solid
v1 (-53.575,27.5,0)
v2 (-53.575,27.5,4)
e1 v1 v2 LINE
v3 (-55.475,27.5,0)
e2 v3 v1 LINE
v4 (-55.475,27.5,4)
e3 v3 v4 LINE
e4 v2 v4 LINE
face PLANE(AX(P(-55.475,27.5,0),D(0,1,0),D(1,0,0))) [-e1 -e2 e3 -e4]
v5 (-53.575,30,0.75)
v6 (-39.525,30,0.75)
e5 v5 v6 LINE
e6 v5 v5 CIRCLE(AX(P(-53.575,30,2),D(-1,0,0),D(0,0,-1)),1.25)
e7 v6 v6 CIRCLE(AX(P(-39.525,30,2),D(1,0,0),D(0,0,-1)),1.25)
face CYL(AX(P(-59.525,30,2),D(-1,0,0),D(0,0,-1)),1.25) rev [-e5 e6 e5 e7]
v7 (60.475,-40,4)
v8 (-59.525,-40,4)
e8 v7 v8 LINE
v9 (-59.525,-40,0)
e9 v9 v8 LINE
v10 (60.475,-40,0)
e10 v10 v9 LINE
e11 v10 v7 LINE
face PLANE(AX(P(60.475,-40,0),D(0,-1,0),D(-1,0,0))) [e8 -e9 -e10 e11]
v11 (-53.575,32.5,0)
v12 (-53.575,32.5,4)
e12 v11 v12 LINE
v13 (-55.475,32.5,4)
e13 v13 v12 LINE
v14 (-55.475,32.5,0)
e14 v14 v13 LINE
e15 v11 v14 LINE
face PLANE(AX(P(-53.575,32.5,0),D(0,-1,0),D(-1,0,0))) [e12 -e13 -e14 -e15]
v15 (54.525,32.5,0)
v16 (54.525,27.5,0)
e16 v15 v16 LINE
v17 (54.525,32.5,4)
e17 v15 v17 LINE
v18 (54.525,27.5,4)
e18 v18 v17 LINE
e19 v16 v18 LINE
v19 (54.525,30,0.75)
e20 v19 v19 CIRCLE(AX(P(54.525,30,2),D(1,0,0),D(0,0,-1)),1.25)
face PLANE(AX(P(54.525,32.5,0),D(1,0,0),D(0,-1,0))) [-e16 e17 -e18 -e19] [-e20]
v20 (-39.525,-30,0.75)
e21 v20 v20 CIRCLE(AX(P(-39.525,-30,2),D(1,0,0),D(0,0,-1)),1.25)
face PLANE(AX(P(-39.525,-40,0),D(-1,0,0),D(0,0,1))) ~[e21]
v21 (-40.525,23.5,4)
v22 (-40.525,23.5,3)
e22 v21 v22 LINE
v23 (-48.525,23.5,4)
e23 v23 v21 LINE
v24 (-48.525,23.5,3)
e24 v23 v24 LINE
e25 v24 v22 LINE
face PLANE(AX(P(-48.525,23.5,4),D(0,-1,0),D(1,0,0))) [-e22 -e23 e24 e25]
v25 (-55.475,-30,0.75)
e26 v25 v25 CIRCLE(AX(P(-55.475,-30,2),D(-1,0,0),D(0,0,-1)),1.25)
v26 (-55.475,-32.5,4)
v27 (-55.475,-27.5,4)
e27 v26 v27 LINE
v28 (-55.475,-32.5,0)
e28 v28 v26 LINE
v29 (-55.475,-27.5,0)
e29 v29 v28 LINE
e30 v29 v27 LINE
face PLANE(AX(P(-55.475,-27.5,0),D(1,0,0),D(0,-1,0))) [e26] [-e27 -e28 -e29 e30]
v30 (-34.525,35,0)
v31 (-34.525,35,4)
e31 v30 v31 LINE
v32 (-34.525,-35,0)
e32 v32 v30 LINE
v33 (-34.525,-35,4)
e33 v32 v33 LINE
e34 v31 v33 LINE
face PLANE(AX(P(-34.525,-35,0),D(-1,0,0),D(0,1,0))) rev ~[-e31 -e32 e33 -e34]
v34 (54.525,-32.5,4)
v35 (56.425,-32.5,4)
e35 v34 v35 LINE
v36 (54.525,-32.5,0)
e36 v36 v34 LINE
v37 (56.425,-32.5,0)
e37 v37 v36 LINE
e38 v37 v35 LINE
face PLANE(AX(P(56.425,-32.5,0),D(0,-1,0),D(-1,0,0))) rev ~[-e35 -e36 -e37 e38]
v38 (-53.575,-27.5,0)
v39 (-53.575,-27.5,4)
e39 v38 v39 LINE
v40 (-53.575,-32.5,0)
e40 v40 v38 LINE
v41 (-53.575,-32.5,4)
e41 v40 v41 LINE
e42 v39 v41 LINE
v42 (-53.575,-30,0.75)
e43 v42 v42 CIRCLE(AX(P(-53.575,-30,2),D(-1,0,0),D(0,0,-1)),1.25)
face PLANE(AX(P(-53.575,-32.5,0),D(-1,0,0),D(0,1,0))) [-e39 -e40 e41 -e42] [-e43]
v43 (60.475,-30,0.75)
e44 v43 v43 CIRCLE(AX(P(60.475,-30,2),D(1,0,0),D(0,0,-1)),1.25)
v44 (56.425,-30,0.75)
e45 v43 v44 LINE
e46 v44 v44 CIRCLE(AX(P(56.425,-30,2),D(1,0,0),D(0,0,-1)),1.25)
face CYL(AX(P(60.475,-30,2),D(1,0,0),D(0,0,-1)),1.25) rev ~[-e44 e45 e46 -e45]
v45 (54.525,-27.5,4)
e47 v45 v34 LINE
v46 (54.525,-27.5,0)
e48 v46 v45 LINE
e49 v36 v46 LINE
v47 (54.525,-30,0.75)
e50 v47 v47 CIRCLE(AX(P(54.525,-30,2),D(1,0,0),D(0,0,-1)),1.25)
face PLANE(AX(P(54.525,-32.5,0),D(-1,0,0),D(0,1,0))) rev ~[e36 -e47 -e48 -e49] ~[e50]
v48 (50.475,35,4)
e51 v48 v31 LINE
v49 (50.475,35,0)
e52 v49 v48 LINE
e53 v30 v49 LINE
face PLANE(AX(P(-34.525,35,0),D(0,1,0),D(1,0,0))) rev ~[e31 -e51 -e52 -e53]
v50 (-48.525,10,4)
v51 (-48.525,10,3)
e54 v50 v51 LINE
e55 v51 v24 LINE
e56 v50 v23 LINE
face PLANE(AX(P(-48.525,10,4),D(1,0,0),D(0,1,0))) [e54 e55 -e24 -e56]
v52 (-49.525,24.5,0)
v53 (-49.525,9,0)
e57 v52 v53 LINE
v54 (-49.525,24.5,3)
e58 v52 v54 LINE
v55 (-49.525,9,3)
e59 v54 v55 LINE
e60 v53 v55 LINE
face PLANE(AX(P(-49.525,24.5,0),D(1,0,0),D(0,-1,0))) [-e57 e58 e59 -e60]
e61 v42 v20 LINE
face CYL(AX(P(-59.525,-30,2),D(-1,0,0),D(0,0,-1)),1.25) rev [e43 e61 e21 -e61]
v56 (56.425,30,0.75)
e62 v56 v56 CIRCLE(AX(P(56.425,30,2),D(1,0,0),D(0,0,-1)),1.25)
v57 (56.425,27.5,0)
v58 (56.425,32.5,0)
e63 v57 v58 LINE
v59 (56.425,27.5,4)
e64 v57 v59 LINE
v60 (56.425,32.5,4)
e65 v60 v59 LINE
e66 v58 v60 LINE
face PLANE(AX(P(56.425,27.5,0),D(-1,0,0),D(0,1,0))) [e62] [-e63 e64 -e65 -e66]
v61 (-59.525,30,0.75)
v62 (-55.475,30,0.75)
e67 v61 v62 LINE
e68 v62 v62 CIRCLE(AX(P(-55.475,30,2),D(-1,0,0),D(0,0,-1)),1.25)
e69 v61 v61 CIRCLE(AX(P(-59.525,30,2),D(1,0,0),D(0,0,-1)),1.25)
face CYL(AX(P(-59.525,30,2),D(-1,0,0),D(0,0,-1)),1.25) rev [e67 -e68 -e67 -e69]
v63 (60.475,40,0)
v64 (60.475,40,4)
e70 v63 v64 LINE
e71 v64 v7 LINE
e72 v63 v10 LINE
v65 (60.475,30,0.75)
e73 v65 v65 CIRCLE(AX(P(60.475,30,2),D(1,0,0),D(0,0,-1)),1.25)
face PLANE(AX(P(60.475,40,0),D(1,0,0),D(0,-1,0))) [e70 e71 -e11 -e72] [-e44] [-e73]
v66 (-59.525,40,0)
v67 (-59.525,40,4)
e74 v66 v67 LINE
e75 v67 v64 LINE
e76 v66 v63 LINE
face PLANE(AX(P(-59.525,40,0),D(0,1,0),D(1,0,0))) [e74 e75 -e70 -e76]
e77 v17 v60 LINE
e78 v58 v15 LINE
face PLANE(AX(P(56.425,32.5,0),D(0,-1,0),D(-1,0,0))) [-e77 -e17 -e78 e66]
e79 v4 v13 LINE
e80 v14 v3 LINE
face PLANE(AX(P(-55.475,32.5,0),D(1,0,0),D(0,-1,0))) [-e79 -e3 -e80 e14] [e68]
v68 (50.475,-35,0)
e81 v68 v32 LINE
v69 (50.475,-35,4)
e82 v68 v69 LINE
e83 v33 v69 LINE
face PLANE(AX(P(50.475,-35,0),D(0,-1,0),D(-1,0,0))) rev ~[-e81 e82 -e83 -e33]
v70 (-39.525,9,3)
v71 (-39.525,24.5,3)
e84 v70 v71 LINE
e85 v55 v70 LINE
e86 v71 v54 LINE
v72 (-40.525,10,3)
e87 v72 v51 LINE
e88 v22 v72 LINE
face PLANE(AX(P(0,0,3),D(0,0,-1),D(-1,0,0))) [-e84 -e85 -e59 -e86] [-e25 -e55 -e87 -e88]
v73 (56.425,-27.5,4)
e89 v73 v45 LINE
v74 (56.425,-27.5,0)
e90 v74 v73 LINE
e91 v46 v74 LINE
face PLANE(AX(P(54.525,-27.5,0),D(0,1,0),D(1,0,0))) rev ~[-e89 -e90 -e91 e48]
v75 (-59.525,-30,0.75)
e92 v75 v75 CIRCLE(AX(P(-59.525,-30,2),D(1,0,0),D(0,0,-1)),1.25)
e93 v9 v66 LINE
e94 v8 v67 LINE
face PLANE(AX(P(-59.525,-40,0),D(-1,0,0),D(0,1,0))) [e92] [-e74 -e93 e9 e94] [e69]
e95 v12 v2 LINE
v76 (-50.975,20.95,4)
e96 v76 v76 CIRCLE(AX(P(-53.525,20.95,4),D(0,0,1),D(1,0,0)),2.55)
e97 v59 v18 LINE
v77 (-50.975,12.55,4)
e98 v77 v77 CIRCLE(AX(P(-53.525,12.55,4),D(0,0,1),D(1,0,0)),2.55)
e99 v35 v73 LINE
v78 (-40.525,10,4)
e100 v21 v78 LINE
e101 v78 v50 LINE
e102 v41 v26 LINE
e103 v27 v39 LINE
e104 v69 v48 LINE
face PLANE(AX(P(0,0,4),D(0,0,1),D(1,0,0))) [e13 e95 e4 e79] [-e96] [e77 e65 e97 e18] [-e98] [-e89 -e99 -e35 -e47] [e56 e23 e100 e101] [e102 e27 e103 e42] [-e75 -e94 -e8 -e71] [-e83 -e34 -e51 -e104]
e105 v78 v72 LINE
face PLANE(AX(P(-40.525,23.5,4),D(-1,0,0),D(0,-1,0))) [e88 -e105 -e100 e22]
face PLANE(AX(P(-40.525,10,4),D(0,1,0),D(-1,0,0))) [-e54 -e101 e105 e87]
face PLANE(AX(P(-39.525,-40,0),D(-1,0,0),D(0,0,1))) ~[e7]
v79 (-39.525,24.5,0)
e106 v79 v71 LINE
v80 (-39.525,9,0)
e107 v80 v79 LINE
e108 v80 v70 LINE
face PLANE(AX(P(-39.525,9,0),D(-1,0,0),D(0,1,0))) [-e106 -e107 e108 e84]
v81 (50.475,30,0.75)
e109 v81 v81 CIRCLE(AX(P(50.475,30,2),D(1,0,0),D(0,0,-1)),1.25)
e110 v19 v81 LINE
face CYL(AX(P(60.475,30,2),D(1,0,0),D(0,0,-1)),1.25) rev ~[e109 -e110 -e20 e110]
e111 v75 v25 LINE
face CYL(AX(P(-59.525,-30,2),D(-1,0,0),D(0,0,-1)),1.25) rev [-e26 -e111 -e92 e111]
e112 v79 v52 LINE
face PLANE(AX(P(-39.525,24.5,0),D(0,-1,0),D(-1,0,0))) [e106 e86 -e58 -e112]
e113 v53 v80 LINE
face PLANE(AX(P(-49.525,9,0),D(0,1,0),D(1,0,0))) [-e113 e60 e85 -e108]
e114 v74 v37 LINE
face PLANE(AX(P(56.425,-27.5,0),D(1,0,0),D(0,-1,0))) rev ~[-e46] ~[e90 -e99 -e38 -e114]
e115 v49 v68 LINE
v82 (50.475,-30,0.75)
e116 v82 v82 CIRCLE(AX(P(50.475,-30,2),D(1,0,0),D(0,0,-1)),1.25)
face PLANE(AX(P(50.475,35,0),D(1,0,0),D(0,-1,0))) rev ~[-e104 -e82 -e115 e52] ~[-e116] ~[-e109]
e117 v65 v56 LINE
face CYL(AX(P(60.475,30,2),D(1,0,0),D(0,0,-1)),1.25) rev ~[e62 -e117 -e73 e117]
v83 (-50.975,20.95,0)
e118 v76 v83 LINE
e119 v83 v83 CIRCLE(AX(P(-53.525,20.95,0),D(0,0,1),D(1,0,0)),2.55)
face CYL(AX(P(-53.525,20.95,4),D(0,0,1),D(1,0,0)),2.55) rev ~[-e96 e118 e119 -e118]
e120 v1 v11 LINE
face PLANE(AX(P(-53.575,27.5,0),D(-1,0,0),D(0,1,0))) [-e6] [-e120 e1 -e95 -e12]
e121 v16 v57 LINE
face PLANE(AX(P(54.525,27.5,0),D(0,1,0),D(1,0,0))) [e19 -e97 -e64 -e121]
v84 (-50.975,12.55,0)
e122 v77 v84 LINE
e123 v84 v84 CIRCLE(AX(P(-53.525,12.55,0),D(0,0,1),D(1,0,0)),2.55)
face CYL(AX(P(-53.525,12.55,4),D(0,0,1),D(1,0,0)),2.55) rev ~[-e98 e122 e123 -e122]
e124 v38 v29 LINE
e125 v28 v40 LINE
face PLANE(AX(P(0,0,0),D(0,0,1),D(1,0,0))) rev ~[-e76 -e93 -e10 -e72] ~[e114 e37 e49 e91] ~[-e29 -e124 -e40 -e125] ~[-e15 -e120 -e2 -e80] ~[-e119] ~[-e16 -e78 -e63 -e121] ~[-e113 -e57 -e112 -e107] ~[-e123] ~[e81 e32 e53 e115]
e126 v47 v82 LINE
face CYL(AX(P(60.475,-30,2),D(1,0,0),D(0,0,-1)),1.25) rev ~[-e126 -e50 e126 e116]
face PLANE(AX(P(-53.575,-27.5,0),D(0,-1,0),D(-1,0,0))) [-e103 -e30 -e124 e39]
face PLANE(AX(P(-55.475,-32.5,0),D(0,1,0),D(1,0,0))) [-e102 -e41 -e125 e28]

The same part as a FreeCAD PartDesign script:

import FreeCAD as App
import Part
import Sketcher
from FreeCAD import Vector
Q = App.Units.Quantity


def add_polygon(sketch, points):
    """Adds a closed chain of lines whose ends are joined by coincident constraints."""
    first, n = sketch.GeometryCount, len(points)
    for a, b in zip(points, points[1:] + points[:1]):
        sketch.addGeometry(Part.LineSegment(App.Vector(*a, 0), App.Vector(*b, 0)), False)
    for i in range(n):
        sketch.addConstraint(Sketcher.Constraint("Coincident", first + i, 2, first + (i + 1) % n, 1))

doc = App.newDocument("Part")
body = doc.addObject("PartDesign::Body", "Body")

# Sketch on XY plane
sketch1 = body.newObject("Sketcher::SketchObject", "Sketch")
sketch1.AttachmentSupport = (doc.getObject("XY_Plane"), [""])
sketch1.MapMode = "FlatFace"
add_polygon(sketch1, [(60.475, 40), (-59.525, 40), (-59.525, -40), (60.475, -40)])  # lines 0-3
sketch1.addConstraint([
    Sketcher.Constraint("Horizontal", 0),
    Sketcher.Constraint("Vertical", 1),
    Sketcher.Constraint("Horizontal", 2),
    Sketcher.Constraint("Vertical", 3),
    Sketcher.Constraint("DistanceX", 0, 2, 0, 1, Q("120 mm")),
    Sketcher.Constraint("DistanceY", 1, 2, 1, 1, Q("80 mm")),
    Sketcher.Constraint("DistanceY", -1, 1, 0, 2, Q("40 mm")),
    Sketcher.Constraint("DistanceX", 0, 2, -1, 1, Q("59.525 mm")),
])
pad1 = body.newObject("PartDesign::Pad", "Pad")
pad1.Profile = sketch1
pad1.Length = 4

# Sketch on YZ plane
sketch2 = body.newObject("Sketcher::SketchObject", "Sketch001")
sketch2.AttachmentSupport = (doc.getObject("YZ_Plane"), [""])
sketch2.MapMode = "FlatFace"
sketch2.AttachmentOffset = App.Placement(Vector(0, 0, 60.475), App.Rotation())
sketch2.addGeometry([
    Part.Circle(Vector(-30, 2, 0), Vector(0, 0, 1), 1.25),
    Part.Circle(Vector(30, 2, 0), Vector(0, 0, 1), 1.25),
], False)
sketch2.addConstraint([
    Sketcher.Constraint("Equal", 0, 1),
    Sketcher.Constraint("Symmetric", 0, 3, 1, 3, -2),
    Sketcher.Constraint("Diameter", 0, Q("2.5 mm")),
    Sketcher.Constraint("DistanceY", -1, 1, 0, 3, Q("2 mm")),
    Sketcher.Constraint("DistanceX", 0, 3, -1, 1, Q("30 mm")),
])
pocket1 = body.newObject("PartDesign::Pocket", "Pocket")
pocket1.Profile = sketch2
pocket1.Length = 20

# Sketch on XY plane
sketch3 = body.newObject("Sketcher::SketchObject", "Sketch002")
sketch3.AttachmentSupport = (doc.getObject("XY_Plane"), [""])
sketch3.MapMode = "FlatFace"
add_polygon(sketch3, [(-55.475, -27.5), (-55.475, -32.5), (-53.575, -32.5), (-53.575, -27.5)])  # lines 0-3
add_polygon(sketch3, [(54.525, -32.5), (56.425, -32.5), (56.425, -27.5), (54.525, -27.5)])  # lines 4-7
add_polygon(sketch3, [(-53.575, 27.5), (-53.575, 32.5), (-55.475, 32.5), (-55.475, 27.5)])  # lines 8-11
add_polygon(sketch3, [(56.425, 27.5), (56.425, 32.5), (54.525, 32.5), (54.525, 27.5)])  # lines 12-15
sketch3.addConstraint([
    Sketcher.Constraint("Vertical", 0),
    Sketcher.Constraint("Horizontal", 1),
    Sketcher.Constraint("Vertical", 2),
    Sketcher.Constraint("Horizontal", 3),
    Sketcher.Constraint("Horizontal", 4),
    Sketcher.Constraint("Vertical", 5),
    Sketcher.Constraint("Horizontal", 6),
    Sketcher.Constraint("Vertical", 7),
    Sketcher.Constraint("Vertical", 8),
    Sketcher.Constraint("Horizontal", 9),
    Sketcher.Constraint("Vertical", 10),
    Sketcher.Constraint("Horizontal", 11),
    Sketcher.Constraint("Vertical", 12),
    Sketcher.Constraint("Horizontal", 13),
    Sketcher.Constraint("Vertical", 14),
    Sketcher.Constraint("Horizontal", 15),
    Sketcher.Constraint("Symmetric", 1, 2, 8, 2, -1),
    Sketcher.Constraint("Symmetric", 3, 2, 10, 2, -1),
    Sketcher.Constraint("Symmetric", 4, 2, 12, 2, -1),
    Sketcher.Constraint("Symmetric", 6, 2, 14, 2, -1),
    Sketcher.Constraint("Horizontal", 1, 2, 4, 2),
    Sketcher.Constraint("Horizontal", 3, 2, 5, 2),
    Sketcher.Constraint("Equal", 3, 4),
    Sketcher.Constraint("DistanceY", 0, 2, 0, 1, Q("5 mm")),
    Sketcher.Constraint("DistanceX", 1, 1, 1, 2, Q("1.9 mm")),
    Sketcher.Constraint("DistanceX", 1, 2, 4, 2, Q("110 mm")),
    Sketcher.Constraint("DistanceY", 2, 2, 8, 2, Q("60 mm")),
    Sketcher.Constraint("DistanceX", 0, 2, -1, 1, Q("55.475 mm")),
])
pocket2 = body.newObject("PartDesign::Pocket", "Pocket001")
pocket2.Profile = sketch3
pocket2.Length = 10
pocket2.Reversed = True
doc.recompute()

datumplane = body.newObject("PartDesign::Plane", "DatumPlane")
datumplane.AttachmentSupport = (doc.getObject("YZ_Plane"), [""])
datumplane.MapMode = "FlatFace"
datumplane.AttachmentOffset = App.Placement(Vector(0, 0, 0.475), App.Rotation())
mirrored = body.newObject("PartDesign::Mirrored", "Mirrored")
mirrored.Originals = [pocket1]
mirrored.MirrorPlane = (datumplane, [""])
body.Tip = mirrored

# Sketch on XY plane
sketch4 = body.newObject("Sketcher::SketchObject", "Sketch003")
sketch4.AttachmentSupport = (doc.getObject("XY_Plane"), [""])
sketch4.MapMode = "FlatFace"
add_polygon(sketch4, [(50.475, 35), (-34.525, 35), (-34.525, -35), (50.475, -35)])  # lines 0-3
sketch4.addConstraint([
    Sketcher.Constraint("Horizontal", 0),
    Sketcher.Constraint("Vertical", 1),
    Sketcher.Constraint("Horizontal", 2),
    Sketcher.Constraint("Vertical", 3),
    Sketcher.Constraint("DistanceX", 0, 2, 0, 1, Q("85 mm")),
    Sketcher.Constraint("DistanceY", 1, 2, 1, 1, Q("70 mm")),
    Sketcher.Constraint("DistanceY", -1, 1, 0, 2, Q("35 mm")),
    Sketcher.Constraint("DistanceX", 0, 2, -1, 1, Q("34.525 mm")),
])
pocket3 = body.newObject("PartDesign::Pocket", "Pocket002")
pocket3.Profile = sketch4
pocket3.Length = 10
pocket3.Reversed = True

# Sketch on XY plane
sketch5 = body.newObject("Sketcher::SketchObject", "Sketch004")
sketch5.AttachmentSupport = (doc.getObject("XY_Plane"), [""])
sketch5.MapMode = "FlatFace"
sketch5.AttachmentOffset = App.Placement(Vector(0, 0, 4), App.Rotation())
add_polygon(sketch5, [(-40.525, 23.5), (-48.525, 23.5), (-48.525, 10), (-40.525, 10)])  # lines 0-3
sketch5.addGeometry(Part.Circle(Vector(-53.525, 20.95, 0), Vector(0, 0, 1), 2.55), False)  # 4
sketch5.addGeometry(Part.Circle(Vector(-53.525, 12.55, 0), Vector(0, 0, 1), 2.55), False)  # 5
sketch5.addConstraint([
    Sketcher.Constraint("Horizontal", 0),
    Sketcher.Constraint("Vertical", 1),
    Sketcher.Constraint("Horizontal", 2),
    Sketcher.Constraint("Vertical", 3),
    Sketcher.Constraint("Equal", 4, 5),
    Sketcher.Constraint("Vertical", 4, 3, 5, 3),
    Sketcher.Constraint("Diameter", 4, Q("5.1 mm")),
    Sketcher.Constraint("DistanceX", 0, 2, 0, 1, Q("8 mm")),
    Sketcher.Constraint("DistanceY", 1, 2, 1, 1, Q("13.5 mm")),
    Sketcher.Constraint("DistanceY", -1, 1, 1, 2, Q("10 mm")),
    Sketcher.Constraint("DistanceX", 4, 3, 0, 2, Q("5 mm")),
    Sketcher.Constraint("DistanceY", 5, 3, 4, 3, Q("8.4 mm")),
    Sketcher.Constraint("DistanceY", -1, 1, 4, 3, Q("20.95 mm")),
    Sketcher.Constraint("DistanceX", 4, 3, -1, 1, Q("53.525 mm")),
])
pocket4 = body.newObject("PartDesign::Pocket", "Pocket003")
pocket4.Profile = sketch5
pocket4.Length = 10

# Sketch on XY plane
sketch6 = body.newObject("Sketcher::SketchObject", "Sketch005")
sketch6.AttachmentSupport = (doc.getObject("XY_Plane"), [""])
sketch6.MapMode = "FlatFace"
add_polygon(sketch6, [(-39.525, 9), (-49.525, 9), (-49.525, 24.5), (-39.525, 24.5)])  # lines 0-3
sketch6.addConstraint([
    Sketcher.Constraint("Horizontal", 0),
    Sketcher.Constraint("Vertical", 1),
    Sketcher.Constraint("Horizontal", 2),
    Sketcher.Constraint("Vertical", 3),
    Sketcher.Constraint("DistanceX", 0, 2, 0, 1, Q("10 mm")),
    Sketcher.Constraint("DistanceY", 1, 1, 1, 2, Q("15.5 mm")),
    Sketcher.Constraint("DistanceY", -1, 1, 0, 2, Q("9 mm")),
    Sketcher.Constraint("DistanceX", 0, 2, -1, 1, Q("49.525 mm")),
])
pocket5 = body.newObject("PartDesign::Pocket", "Pocket004")
pocket5.Profile = sketch6
pocket5.Length = 3
pocket5.Reversed = True

doc.recompute()
